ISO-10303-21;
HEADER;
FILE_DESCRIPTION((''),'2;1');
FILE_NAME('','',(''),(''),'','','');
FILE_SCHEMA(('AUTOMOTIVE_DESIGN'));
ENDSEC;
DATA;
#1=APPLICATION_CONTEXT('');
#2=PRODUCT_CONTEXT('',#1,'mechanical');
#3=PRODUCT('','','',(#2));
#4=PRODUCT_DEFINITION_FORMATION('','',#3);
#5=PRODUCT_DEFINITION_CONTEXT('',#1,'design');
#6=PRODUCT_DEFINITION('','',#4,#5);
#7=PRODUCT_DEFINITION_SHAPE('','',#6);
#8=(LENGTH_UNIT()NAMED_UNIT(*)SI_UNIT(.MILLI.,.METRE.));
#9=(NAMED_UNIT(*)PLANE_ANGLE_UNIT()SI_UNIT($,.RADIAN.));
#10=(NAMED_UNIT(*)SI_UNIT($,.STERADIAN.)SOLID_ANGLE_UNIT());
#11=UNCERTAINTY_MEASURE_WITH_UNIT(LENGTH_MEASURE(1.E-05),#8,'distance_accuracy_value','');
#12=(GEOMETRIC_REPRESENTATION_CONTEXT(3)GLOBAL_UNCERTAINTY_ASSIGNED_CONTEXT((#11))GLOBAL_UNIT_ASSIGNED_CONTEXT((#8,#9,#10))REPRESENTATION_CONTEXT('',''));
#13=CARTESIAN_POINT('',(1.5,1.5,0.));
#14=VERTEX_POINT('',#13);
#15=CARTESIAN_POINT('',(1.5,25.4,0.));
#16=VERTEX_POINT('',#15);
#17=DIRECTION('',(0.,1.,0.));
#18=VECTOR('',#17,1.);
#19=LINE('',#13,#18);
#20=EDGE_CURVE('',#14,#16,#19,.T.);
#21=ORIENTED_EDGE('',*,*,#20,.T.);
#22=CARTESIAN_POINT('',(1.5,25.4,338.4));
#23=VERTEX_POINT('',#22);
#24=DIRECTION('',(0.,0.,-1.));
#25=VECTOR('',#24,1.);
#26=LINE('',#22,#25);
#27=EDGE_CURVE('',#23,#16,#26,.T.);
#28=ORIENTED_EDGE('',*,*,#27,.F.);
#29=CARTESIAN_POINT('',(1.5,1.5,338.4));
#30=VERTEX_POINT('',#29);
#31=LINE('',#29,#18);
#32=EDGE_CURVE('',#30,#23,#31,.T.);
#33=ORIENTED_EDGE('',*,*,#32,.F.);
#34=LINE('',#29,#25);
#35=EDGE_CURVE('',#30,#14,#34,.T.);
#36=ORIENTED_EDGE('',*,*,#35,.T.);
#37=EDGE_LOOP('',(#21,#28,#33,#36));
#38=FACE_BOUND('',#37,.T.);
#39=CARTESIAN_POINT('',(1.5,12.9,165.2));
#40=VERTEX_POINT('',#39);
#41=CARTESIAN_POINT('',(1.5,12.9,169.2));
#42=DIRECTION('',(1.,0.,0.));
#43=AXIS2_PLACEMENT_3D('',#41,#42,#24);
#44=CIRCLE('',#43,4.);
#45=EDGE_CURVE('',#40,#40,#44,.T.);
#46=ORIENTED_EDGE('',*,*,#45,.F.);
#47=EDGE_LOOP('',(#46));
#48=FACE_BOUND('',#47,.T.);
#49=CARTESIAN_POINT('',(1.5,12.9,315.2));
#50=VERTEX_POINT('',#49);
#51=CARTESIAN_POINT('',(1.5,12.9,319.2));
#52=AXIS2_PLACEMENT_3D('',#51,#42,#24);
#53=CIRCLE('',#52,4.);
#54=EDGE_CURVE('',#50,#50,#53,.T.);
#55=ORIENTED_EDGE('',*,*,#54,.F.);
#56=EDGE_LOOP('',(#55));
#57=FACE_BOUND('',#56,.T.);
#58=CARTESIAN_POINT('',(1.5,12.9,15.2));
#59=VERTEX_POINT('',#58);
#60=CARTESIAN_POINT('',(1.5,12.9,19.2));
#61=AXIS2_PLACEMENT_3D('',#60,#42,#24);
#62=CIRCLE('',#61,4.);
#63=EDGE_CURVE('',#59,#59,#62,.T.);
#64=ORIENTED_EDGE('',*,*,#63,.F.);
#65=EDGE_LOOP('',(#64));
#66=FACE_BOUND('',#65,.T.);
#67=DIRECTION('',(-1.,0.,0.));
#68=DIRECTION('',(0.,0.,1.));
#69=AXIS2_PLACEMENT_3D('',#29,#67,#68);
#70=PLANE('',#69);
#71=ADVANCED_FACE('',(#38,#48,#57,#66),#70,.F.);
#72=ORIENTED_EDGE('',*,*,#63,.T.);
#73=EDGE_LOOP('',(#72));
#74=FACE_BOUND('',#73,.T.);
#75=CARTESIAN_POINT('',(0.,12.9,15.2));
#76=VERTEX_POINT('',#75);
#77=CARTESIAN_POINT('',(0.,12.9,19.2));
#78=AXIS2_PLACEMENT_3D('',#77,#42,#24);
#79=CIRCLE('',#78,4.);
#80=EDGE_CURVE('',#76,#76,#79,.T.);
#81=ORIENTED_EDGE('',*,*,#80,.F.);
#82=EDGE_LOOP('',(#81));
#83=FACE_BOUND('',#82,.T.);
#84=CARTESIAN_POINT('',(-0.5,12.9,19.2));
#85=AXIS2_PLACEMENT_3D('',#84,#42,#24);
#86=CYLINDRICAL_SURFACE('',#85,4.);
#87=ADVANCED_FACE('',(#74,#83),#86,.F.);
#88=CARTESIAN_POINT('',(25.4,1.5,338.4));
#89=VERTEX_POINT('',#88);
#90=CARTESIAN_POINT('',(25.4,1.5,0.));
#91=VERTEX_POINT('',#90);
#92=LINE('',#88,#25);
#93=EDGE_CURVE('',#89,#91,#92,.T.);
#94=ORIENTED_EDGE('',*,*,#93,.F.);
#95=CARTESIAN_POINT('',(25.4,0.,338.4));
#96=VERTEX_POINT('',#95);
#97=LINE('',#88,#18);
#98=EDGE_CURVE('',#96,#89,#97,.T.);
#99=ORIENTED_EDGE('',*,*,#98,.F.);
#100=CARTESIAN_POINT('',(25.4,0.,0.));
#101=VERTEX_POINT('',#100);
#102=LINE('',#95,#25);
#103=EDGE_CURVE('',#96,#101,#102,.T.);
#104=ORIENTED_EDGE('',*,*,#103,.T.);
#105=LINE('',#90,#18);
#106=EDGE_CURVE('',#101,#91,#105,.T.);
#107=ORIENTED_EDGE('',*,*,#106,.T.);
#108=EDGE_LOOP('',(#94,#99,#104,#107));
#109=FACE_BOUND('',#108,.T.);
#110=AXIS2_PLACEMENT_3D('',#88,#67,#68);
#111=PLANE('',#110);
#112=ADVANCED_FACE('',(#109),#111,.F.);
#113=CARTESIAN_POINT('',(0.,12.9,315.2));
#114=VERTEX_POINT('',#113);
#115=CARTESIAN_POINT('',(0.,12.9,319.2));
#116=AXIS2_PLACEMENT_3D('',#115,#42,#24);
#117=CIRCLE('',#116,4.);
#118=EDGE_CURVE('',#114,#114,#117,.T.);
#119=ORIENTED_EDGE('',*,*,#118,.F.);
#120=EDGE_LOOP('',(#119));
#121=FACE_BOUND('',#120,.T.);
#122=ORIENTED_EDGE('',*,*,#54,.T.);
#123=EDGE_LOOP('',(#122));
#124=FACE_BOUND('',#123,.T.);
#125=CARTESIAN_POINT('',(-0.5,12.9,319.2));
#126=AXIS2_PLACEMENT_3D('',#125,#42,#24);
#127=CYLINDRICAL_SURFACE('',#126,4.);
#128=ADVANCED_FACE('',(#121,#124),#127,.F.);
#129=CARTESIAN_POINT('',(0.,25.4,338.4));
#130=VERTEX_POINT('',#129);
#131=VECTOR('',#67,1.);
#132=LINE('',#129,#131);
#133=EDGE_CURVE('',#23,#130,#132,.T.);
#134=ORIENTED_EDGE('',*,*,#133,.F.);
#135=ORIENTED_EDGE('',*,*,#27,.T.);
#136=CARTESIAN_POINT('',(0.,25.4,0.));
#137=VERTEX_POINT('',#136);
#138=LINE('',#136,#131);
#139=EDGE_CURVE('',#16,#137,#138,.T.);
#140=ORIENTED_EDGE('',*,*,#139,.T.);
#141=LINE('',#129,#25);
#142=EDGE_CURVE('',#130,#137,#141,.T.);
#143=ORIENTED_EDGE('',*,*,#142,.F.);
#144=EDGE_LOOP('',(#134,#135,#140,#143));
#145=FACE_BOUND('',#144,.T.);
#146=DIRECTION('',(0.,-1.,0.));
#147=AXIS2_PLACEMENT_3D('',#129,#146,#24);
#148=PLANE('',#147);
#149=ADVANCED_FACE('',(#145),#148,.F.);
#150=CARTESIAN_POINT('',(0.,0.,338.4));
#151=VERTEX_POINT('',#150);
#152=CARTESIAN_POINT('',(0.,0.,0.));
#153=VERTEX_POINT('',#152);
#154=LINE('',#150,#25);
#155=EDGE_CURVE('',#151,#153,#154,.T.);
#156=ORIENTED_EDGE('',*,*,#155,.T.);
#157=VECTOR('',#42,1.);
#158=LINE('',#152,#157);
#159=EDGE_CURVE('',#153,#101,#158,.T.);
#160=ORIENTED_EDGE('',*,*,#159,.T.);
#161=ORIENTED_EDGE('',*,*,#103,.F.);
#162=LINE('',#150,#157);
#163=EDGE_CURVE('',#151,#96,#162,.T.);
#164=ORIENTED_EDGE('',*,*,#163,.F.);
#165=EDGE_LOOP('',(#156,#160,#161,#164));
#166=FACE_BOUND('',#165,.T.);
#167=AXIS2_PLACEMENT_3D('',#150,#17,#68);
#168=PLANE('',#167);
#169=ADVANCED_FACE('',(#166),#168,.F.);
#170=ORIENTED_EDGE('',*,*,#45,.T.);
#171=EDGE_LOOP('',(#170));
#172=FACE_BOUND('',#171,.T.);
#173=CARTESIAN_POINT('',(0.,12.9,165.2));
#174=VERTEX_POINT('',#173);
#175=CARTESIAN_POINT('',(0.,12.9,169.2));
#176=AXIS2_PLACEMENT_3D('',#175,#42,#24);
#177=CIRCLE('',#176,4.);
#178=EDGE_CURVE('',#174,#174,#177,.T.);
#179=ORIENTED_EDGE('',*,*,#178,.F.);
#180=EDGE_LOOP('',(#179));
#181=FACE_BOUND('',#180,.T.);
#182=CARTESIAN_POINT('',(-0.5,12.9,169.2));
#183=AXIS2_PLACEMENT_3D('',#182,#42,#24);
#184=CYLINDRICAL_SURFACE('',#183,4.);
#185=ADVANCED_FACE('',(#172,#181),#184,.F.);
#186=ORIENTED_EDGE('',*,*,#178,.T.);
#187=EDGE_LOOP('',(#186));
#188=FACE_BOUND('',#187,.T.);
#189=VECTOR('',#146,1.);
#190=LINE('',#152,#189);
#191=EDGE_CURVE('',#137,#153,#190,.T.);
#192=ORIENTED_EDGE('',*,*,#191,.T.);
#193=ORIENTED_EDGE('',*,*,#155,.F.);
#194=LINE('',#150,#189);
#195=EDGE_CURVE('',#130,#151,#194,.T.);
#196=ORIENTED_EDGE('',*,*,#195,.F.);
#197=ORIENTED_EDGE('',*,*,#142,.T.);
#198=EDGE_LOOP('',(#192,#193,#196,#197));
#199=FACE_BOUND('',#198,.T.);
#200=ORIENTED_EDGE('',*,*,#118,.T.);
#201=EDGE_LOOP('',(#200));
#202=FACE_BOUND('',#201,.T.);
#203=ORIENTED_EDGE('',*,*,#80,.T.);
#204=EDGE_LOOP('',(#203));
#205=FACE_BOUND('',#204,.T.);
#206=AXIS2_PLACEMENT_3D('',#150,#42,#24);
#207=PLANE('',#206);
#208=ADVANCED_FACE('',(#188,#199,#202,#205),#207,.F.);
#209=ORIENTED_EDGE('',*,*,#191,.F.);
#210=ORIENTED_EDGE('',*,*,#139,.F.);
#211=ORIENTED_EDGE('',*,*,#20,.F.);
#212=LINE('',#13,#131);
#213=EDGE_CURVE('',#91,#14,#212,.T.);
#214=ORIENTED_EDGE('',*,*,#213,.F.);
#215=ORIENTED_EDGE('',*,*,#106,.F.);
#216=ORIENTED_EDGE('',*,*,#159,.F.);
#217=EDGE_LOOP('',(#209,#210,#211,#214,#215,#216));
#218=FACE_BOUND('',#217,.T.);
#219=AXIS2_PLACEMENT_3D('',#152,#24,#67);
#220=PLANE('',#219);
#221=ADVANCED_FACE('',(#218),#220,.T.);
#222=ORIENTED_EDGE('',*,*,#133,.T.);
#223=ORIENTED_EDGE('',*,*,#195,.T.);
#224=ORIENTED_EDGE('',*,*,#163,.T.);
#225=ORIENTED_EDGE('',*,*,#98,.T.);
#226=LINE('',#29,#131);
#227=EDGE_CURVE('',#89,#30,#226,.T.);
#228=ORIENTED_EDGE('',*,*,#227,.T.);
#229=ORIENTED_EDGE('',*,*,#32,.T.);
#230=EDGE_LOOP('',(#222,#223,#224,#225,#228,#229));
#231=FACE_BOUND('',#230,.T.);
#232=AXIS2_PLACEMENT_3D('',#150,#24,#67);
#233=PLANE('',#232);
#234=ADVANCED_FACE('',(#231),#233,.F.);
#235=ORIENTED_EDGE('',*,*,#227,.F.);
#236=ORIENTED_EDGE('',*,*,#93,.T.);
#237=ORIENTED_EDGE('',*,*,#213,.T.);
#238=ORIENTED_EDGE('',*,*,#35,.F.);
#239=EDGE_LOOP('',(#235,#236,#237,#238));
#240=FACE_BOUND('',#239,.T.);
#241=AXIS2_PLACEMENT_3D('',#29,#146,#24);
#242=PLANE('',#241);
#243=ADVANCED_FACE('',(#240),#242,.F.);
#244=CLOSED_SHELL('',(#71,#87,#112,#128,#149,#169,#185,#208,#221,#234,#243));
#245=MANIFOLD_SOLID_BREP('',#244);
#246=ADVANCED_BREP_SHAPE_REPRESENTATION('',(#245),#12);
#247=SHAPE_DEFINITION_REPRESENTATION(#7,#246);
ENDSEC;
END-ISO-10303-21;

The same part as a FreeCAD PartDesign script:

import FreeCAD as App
import Part
import Sketcher

doc = App.newDocument("Part")
body = doc.addObject("PartDesign::Body", "Body")

# Sketch on XY plane
sketch1 = body.newObject("Sketcher::SketchObject", "Sketch")
sketch1.AttachmentSupport = (doc.getObject("XY_Plane"), [""])
sketch1.MapMode = "FlatFace"
sketch1.addGeometry(Part.LineSegment(App.Vector(0, 25.4, 0), App.Vector(0, 0, 0)), False)
sketch1.addGeometry(Part.LineSegment(App.Vector(0, 0, 0), App.Vector(25.4, 0, 0)), False)
sketch1.addGeometry(Part.LineSegment(App.Vector(25.4, 0, 0), App.Vector(25.4, 1.5, 0)), False)
sketch1.addGeometry(Part.LineSegment(App.Vector(25.4, 1.5, 0), App.Vector(1.5, 1.5, 0)), False)
sketch1.addGeometry(Part.LineSegment(App.Vector(1.5, 1.5, 0), App.Vector(1.5, 25.4, 0)), False)
sketch1.addGeometry(Part.LineSegment(App.Vector(1.5, 25.4, 0), App.Vector(0, 25.4, 0)), False)
sketch1.addConstraint(Sketcher.Constraint("Coincident", 0, 2, 1, 1))
sketch1.addConstraint(Sketcher.Constraint("Coincident", 1, 2, 2, 1))
sketch1.addConstraint(Sketcher.Constraint("Coincident", 2, 2, 3, 1))
sketch1.addConstraint(Sketcher.Constraint("Coincident", 3, 2, 4, 1))
sketch1.addConstraint(Sketcher.Constraint("Coincident", 4, 2, 5, 1))
sketch1.addConstraint(Sketcher.Constraint("Coincident", 5, 2, 0, 1))
sketch1.addConstraint(Sketcher.Constraint("Vertical", 0))
sketch1.addConstraint(Sketcher.Constraint("Horizontal", 1))
sketch1.addConstraint(Sketcher.Constraint("Vertical", 2))
sketch1.addConstraint(Sketcher.Constraint("Horizontal", 3))
sketch1.addConstraint(Sketcher.Constraint("Vertical", 4))
sketch1.addConstraint(Sketcher.Constraint("Horizontal", 5))
sketch1.addConstraint(Sketcher.Constraint("Coincident", 0, 2, -1, 1))
sketch1.addConstraint(Sketcher.Constraint("Equal", 1, 0))
sketch1.addConstraint(Sketcher.Constraint("Equal", 5, 2))
sketch1.addConstraint(Sketcher.Constraint("DistanceX", 1, 1, 1, 2, 25.4))
sketch1.addConstraint(Sketcher.Constraint("DistanceX", 3, 2, 3, 1, 23.9))
pad1 = body.newObject("PartDesign::Pad", "Pad")
pad1.Profile = sketch1
pad1.Length = 338.4

# Sketch on YZ plane
sketch2 = body.newObject("Sketcher::SketchObject", "Sketch001")
sketch2.AttachmentSupport = (doc.getObject("YZ_Plane"), [""])
sketch2.MapMode = "FlatFace"
sketch2.AttachmentOffset = App.Placement(App.Vector(0, 0, 1.5), App.Rotation())
sketch2.addGeometry(Part.Circle(App.Vector(12.9, 19.2, 0), App.Vector(0, 0, 1), 4), False)
sketch2.addGeometry(Part.Circle(App.Vector(12.9, 319.2, 0), App.Vector(0, 0, 1), 4), False)
sketch2.addGeometry(Part.Circle(App.Vector(12.9, 169.2, 0), App.Vector(0, 0, 1), 4), False)
sketch2.addConstraint(Sketcher.Constraint("Equal", 0, 1))
sketch2.addConstraint(Sketcher.Constraint("Equal", 1, 2))
sketch2.addConstraint(Sketcher.Constraint("Vertical", 0, 3, 1, 3))
sketch2.addConstraint(Sketcher.Constraint("Vertical", 1, 3, 2, 3))
sketch2.addConstraint(Sketcher.Constraint("Diameter", 0, 8.0))
sketch2.addConstraint(Sketcher.Constraint("DistanceY", 0, 3, 1, 3, 300.0))
sketch2.addConstraint(Sketcher.Constraint("DistanceY", 0, 3, 2, 3, 150.0))
sketch2.addConstraint(Sketcher.Constraint("DistanceX", -1, 1, 0, 3, 12.9))
sketch2.addConstraint(Sketcher.Constraint("DistanceY", -1, 1, 0, 3, 19.2))
pocket1 = body.newObject("PartDesign::Pocket", "Pocket")
pocket1.Profile = sketch2
pocket1.Length = 2

doc.recompute()
